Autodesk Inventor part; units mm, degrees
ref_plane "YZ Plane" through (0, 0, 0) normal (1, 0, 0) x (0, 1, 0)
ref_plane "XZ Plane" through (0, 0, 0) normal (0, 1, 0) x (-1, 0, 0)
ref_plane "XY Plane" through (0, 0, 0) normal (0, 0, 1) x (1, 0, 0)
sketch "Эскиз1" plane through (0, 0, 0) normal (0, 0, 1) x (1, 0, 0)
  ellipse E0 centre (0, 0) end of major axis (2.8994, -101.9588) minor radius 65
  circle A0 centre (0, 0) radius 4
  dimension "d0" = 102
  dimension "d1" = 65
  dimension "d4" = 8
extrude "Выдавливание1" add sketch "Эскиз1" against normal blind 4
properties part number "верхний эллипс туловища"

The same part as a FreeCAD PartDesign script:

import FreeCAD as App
import Part
import Sketcher
from FreeCAD import Vector
Q = App.Units.Quantity

doc = App.newDocument("Part")
params = doc.addObject("Spreadsheet::Sheet", "Params")
for row, (alias, value) in enumerate([
    ("sketch1_diameter", "8 mm"),
    ("pad1_length", "4 mm"),
], start=1):
    params.set(f"A{row}", alias)
    params.set(f"B{row}", "=" + value)
    params.setAlias(f"B{row}", alias)

body = doc.addObject("PartDesign::Body", "Body")

sketch1 = body.newObject("Sketcher::SketchObject", "Sketch")
sketch1.AttachmentSupport = (doc.getObject("XY_Plane"), [""])
sketch1.MapMode = "FlatFace"
sketch1.addGeometry(Part.Ellipse(Vector(2.8994, -101.9588, 0), Vector(64.973734, 1.847657, 0), Vector(0, 0, 0)), False)
sketch1.addGeometry(Part.Circle(Vector(0, 0, 0), Vector(0, 0, 1), 4), False)
sketch1.addConstraint(Sketcher.Constraint("Block", 0))
sketch1.addConstraint(Sketcher.Constraint("Coincident", 1, 3, -1, 1))
sketch1.addConstraint(Sketcher.Constraint("Diameter", 1, Q("8 mm")))
sketch1.setExpression("Constraints[2]", "Params.sketch1_diameter")
pad1 = body.newObject("PartDesign::Pad", "Pad")
pad1.Profile = sketch1
pad1.setExpression("Length", "Params.pad1_length")
pad1.Reversed = True

doc.recompute()
